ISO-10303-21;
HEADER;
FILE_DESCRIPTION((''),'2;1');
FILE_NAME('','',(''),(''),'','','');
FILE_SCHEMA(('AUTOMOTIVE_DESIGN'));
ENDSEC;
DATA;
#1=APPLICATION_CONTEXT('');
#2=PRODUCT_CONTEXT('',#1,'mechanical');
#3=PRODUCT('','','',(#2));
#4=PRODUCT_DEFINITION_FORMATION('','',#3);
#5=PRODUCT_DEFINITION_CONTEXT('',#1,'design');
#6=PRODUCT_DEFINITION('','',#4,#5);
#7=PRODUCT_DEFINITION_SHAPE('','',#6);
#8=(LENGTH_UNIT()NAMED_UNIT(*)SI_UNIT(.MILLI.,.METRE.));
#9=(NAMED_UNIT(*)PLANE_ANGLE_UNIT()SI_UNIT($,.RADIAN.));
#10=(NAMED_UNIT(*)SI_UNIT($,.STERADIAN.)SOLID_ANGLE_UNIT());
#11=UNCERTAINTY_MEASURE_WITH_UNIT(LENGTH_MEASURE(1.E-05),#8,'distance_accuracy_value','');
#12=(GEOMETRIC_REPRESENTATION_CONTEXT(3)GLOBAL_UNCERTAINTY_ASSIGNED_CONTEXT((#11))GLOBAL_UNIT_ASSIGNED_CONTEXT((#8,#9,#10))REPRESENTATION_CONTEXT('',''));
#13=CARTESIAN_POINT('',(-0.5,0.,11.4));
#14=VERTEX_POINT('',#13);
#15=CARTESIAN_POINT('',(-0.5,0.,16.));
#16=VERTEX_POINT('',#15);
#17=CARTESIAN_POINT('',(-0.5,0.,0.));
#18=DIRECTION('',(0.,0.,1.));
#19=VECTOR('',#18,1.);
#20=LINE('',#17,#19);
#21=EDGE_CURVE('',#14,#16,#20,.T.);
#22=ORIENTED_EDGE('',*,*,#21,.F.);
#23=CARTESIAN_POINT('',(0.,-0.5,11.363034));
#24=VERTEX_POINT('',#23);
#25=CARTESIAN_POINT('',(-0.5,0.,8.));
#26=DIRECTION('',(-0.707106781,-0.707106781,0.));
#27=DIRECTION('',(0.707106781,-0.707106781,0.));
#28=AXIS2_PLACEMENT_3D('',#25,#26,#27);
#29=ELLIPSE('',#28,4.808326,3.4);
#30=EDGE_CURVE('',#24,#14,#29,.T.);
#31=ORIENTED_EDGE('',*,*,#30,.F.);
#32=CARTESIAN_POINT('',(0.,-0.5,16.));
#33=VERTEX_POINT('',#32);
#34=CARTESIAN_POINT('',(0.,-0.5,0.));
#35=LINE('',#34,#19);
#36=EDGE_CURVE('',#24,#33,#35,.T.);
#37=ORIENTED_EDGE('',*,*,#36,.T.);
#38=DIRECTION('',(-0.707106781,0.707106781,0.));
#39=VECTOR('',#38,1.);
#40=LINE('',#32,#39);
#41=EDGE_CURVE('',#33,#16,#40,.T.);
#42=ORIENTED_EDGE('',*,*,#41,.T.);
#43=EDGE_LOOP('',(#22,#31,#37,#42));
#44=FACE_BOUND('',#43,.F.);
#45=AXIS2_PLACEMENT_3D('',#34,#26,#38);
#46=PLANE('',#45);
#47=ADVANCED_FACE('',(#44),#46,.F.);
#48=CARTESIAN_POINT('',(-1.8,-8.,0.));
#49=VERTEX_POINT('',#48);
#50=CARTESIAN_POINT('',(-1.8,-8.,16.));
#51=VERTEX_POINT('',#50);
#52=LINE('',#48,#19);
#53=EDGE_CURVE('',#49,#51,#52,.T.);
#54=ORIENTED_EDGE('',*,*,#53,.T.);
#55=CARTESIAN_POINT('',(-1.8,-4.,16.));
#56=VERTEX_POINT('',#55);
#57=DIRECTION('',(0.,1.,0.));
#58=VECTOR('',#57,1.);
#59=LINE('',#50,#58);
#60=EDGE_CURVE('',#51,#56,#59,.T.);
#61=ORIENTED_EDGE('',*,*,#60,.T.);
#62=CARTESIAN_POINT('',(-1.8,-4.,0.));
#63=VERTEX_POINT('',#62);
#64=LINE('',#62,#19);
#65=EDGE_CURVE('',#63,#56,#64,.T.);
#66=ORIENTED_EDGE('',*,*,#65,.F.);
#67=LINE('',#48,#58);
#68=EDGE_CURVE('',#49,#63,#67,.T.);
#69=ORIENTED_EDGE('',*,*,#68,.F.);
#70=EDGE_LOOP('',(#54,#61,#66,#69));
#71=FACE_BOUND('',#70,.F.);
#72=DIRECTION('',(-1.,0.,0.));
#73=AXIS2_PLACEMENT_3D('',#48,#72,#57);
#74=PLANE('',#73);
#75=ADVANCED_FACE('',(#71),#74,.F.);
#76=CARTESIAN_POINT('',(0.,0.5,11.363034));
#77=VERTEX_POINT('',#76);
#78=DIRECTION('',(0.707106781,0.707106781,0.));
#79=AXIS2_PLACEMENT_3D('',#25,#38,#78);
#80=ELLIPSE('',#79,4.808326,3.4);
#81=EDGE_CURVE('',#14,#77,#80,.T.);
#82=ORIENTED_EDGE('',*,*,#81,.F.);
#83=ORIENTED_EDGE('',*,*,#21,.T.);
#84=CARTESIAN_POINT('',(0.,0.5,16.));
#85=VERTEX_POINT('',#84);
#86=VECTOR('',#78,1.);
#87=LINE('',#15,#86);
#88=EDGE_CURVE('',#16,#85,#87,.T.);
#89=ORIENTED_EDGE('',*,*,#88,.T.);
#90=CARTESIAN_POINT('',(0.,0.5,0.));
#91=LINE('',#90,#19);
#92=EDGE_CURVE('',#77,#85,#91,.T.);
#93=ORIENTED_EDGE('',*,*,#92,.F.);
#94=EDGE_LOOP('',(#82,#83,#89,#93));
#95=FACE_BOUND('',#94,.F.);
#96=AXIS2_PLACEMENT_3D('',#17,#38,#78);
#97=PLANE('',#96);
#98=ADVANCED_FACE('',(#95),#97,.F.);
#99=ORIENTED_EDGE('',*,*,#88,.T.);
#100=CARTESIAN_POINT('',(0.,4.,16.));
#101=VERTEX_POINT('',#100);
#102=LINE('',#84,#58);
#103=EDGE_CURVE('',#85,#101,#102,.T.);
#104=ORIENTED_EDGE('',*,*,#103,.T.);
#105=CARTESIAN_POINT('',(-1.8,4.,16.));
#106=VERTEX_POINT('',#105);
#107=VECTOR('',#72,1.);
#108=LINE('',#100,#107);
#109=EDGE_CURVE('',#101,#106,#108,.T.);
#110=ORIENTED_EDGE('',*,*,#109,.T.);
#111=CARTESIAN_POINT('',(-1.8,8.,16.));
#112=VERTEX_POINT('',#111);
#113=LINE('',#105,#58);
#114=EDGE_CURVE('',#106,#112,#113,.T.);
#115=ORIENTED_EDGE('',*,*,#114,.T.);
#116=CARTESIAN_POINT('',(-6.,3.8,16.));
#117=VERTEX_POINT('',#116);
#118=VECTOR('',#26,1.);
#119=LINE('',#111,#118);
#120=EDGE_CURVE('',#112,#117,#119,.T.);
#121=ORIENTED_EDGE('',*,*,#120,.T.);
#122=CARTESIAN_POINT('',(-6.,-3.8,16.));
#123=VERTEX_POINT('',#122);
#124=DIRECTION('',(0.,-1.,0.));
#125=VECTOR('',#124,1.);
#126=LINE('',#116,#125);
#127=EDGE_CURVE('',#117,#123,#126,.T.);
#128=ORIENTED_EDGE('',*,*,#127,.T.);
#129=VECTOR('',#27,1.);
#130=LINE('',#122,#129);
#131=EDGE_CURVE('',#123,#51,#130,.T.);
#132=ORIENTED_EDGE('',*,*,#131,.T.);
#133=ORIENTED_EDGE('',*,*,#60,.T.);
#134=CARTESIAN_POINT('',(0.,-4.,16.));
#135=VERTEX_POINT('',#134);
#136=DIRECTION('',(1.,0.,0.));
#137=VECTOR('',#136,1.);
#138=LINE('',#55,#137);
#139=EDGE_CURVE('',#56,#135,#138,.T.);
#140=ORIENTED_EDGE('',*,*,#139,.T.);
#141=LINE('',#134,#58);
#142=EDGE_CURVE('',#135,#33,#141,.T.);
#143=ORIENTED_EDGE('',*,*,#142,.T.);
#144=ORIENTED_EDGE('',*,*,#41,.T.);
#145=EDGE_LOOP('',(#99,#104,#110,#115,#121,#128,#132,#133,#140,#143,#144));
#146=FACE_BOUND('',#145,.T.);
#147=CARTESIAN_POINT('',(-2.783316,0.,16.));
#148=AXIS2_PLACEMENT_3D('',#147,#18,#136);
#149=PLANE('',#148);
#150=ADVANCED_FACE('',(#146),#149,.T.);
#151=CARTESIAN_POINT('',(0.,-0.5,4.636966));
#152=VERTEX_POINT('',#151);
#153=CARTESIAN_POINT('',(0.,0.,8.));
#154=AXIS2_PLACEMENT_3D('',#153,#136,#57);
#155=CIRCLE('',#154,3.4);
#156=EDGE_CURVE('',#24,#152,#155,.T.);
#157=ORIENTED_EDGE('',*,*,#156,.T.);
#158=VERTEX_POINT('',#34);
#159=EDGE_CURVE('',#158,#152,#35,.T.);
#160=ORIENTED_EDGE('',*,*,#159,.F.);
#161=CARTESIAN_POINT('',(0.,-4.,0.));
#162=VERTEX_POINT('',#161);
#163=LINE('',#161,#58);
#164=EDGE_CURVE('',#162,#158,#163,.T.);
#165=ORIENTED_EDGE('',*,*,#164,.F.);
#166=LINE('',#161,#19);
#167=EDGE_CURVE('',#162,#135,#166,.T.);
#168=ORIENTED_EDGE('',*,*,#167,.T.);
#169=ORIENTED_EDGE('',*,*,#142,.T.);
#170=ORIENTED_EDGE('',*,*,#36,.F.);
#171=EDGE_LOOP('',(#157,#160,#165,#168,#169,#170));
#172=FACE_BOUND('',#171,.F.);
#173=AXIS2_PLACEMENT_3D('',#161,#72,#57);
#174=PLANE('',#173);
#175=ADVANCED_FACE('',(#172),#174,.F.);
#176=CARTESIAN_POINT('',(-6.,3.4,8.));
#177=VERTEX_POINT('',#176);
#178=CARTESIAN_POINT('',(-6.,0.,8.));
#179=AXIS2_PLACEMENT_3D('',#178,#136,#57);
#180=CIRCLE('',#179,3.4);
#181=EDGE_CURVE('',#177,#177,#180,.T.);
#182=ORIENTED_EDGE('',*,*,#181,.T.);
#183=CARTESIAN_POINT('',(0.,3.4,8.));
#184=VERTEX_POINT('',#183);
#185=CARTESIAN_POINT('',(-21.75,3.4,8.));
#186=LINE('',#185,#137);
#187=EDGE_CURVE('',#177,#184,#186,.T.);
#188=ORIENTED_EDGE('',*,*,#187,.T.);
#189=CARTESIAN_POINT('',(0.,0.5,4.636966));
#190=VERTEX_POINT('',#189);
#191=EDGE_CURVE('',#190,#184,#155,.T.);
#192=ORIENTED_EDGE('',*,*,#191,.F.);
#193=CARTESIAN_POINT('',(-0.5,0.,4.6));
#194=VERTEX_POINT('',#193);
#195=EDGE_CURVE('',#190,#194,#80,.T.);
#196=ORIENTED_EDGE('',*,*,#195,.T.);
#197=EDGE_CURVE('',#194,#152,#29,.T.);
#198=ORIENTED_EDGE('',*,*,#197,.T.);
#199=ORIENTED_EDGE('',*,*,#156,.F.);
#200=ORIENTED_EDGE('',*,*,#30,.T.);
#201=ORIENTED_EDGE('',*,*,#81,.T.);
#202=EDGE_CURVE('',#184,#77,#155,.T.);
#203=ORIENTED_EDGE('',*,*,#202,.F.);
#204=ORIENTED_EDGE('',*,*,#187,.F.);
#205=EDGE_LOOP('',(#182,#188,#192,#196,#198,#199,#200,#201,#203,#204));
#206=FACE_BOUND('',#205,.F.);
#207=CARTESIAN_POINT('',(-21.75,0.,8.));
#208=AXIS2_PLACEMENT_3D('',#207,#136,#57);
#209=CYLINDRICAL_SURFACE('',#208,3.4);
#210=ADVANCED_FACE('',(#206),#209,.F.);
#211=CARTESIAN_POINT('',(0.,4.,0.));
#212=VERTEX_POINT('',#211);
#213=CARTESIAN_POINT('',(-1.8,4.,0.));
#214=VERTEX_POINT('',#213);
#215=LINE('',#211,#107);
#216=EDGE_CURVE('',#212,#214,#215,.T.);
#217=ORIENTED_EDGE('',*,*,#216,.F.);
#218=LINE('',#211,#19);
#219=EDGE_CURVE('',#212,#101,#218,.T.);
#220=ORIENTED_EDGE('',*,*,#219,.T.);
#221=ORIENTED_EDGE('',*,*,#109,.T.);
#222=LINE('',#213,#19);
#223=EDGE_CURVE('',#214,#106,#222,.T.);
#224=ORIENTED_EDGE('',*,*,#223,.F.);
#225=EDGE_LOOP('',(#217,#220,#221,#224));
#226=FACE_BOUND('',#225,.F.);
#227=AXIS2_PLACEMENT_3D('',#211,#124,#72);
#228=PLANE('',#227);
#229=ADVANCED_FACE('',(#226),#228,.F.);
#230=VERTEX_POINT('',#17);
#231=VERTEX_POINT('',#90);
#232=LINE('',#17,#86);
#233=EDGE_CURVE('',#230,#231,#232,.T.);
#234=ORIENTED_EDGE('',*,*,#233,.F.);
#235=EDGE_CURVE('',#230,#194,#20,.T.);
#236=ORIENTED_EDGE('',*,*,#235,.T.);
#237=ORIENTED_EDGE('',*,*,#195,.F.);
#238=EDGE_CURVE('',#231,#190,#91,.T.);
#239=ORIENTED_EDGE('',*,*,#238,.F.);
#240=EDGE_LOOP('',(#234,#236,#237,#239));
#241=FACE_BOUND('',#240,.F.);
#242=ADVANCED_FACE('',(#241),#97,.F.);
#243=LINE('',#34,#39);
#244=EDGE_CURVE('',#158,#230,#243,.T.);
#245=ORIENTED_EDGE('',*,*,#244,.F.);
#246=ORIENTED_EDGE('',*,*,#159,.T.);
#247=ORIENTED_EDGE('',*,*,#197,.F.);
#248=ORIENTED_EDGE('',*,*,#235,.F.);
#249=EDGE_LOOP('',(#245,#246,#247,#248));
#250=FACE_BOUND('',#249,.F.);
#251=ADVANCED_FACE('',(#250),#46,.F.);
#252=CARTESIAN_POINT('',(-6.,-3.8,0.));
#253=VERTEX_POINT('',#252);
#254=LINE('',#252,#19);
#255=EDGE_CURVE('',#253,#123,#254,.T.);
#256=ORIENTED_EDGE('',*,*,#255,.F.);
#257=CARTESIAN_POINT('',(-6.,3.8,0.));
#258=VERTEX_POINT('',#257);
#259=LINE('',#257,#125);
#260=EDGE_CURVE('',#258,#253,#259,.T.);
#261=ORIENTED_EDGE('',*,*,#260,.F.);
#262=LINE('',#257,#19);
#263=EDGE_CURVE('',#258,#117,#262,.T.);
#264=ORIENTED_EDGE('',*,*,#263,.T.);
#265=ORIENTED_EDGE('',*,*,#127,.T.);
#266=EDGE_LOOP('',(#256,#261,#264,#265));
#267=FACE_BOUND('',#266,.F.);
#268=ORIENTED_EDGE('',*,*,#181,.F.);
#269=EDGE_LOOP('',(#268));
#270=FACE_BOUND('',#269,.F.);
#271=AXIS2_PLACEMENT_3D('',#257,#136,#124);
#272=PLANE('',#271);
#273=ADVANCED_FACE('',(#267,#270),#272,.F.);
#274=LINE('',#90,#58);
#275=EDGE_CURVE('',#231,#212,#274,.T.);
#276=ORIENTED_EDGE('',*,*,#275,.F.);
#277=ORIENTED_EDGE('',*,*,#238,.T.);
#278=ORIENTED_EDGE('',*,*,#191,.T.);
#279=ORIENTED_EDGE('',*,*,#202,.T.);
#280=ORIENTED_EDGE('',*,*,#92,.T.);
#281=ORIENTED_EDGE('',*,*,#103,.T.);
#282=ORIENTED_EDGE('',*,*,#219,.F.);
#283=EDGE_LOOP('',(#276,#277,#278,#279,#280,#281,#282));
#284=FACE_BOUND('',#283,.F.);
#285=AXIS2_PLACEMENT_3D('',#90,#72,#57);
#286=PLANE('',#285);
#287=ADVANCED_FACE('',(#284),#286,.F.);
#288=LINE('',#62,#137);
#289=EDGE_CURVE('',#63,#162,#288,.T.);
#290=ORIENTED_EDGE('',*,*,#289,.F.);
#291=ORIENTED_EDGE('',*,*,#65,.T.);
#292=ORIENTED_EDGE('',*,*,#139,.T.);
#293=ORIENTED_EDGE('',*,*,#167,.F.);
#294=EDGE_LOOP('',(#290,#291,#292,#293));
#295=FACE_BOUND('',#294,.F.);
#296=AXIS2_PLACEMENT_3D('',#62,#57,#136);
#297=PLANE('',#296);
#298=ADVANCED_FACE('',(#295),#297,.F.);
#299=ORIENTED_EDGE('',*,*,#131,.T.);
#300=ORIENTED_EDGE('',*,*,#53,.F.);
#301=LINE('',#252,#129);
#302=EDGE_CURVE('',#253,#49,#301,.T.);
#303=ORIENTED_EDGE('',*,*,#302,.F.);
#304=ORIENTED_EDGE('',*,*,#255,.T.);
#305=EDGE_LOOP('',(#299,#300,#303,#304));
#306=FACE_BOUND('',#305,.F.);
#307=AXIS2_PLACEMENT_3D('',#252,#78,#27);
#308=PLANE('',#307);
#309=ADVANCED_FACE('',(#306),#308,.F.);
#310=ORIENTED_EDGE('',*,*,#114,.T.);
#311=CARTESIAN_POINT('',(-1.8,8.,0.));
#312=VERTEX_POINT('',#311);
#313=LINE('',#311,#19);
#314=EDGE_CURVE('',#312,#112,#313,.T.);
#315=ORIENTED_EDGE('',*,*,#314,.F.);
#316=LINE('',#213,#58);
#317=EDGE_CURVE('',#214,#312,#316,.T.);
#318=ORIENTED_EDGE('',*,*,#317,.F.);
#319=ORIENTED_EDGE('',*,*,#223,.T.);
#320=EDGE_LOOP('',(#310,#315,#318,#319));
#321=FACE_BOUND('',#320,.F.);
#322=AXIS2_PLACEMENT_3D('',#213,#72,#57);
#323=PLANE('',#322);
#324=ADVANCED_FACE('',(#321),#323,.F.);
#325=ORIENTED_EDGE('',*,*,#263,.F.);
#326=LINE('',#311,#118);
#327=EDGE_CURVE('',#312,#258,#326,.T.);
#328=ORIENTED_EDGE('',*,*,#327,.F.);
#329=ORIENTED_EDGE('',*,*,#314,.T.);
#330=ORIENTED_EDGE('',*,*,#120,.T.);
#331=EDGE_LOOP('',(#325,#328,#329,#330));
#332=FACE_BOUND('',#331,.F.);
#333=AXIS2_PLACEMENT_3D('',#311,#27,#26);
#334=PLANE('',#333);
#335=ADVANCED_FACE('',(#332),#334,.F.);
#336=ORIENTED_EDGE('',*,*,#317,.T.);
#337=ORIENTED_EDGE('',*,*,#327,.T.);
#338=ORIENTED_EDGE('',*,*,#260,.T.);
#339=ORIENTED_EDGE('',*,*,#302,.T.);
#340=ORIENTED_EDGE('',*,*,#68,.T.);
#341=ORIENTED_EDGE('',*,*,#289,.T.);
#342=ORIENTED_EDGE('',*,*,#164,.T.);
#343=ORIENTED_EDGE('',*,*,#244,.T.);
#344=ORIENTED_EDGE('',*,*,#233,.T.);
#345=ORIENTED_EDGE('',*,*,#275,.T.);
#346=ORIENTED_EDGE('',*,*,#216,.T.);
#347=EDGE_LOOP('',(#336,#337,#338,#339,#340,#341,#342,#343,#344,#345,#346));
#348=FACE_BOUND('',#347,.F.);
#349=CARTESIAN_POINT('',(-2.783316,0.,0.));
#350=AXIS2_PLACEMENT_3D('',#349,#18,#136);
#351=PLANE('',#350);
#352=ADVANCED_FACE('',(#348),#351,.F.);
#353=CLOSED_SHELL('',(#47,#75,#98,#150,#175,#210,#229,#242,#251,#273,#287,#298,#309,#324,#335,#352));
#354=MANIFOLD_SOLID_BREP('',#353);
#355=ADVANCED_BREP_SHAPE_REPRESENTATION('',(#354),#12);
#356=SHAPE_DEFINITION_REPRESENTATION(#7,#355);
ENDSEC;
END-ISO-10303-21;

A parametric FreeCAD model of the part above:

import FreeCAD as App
import Part
import Sketcher

V = App.Vector
Q = App.Units.Quantity

doc = App.newDocument("Part")
body = doc.addObject("PartDesign::Body", "Body")

sketch1 = body.newObject("Sketcher::SketchObject", "Sketch")
sketch1.AttachmentSupport = (doc.getObject("XY_Plane"), [""])
sketch1.MapMode = "FlatFace"
sketch1.addGeometry(Part.LineSegment(V(-0.5, 0, 0), V(0, 0.5, 0)), False)
sketch1.addGeometry(Part.LineSegment(V(0, 0.5, 0), V(0, 4, 0)), False)
sketch1.addGeometry(Part.LineSegment(V(0, 4, 0), V(-1.8, 4, 0)), False)
sketch1.addGeometry(Part.LineSegment(V(-1.8, 4, 0), V(-1.8, 8, 0)), False)
sketch1.addGeometry(Part.LineSegment(V(-1.8, 8, 0), V(-6, 3.8, 0)), False)
sketch1.addGeometry(Part.LineSegment(V(-6, 3.8, 0), V(-6, -3.8, 0)), False)
sketch1.addGeometry(Part.LineSegment(V(-6, -3.8, 0), V(-1.8, -8, 0)), False)
sketch1.addGeometry(Part.LineSegment(V(-1.8, -8, 0), V(-1.8, -4, 0)), False)
sketch1.addGeometry(Part.LineSegment(V(-1.8, -4, 0), V(0, -4, 0)), False)
sketch1.addGeometry(Part.LineSegment(V(0, -4, 0), V(0, -0.5, 0)), False)
sketch1.addGeometry(Part.LineSegment(V(0, -0.5, 0), V(-0.5, 0, 0)), False)
sketch1.addConstraint(Sketcher.Constraint("Coincident", 0, 2, 1, 1))
sketch1.addConstraint(Sketcher.Constraint("Coincident", 1, 2, 2, 1))
sketch1.addConstraint(Sketcher.Constraint("Coincident", 2, 2, 3, 1))
sketch1.addConstraint(Sketcher.Constraint("Coincident", 3, 2, 4, 1))
sketch1.addConstraint(Sketcher.Constraint("Coincident", 4, 2, 5, 1))
sketch1.addConstraint(Sketcher.Constraint("Coincident", 5, 2, 6, 1))
sketch1.addConstraint(Sketcher.Constraint("Coincident", 6, 2, 7, 1))
sketch1.addConstraint(Sketcher.Constraint("Coincident", 7, 2, 8, 1))
sketch1.addConstraint(Sketcher.Constraint("Coincident", 8, 2, 9, 1))
sketch1.addConstraint(Sketcher.Constraint("Coincident", 9, 2, 10, 1))
sketch1.addConstraint(Sketcher.Constraint("Coincident", 10, 2, 0, 1))
sketch1.addConstraint(Sketcher.Constraint("Vertical", 1))
sketch1.addConstraint(Sketcher.Constraint("Horizontal", 2))
sketch1.addConstraint(Sketcher.Constraint("Vertical", 3))
sketch1.addConstraint(Sketcher.Constraint("Vertical", 5))
sketch1.addConstraint(Sketcher.Constraint("Vertical", 7))
sketch1.addConstraint(Sketcher.Constraint("Horizontal", 8))
sketch1.addConstraint(Sketcher.Constraint("Vertical", 9))
sketch1.addConstraint(Sketcher.Constraint("Symmetric", 1, 2, 8, 2, -1, 1))
sketch1.addConstraint(Sketcher.Constraint("Symmetric", 3, 2, 6, 2, -1))
sketch1.addConstraint(Sketcher.Constraint("Symmetric", 0, 2, 9, 2, -1))
sketch1.addConstraint(Sketcher.Constraint("PointOnObject", 10, 2, -1))
sketch1.addConstraint(Sketcher.Constraint("Parallel", 0, 4))
sketch1.addConstraint(Sketcher.Constraint("Perpendicular", 4, 6))
sketch1.addConstraint(Sketcher.Constraint("Parallel", 6, 10))
sketch1.addConstraint(Sketcher.Constraint("DistanceY", 3, 1, 3, 2, Q("4 mm")))
sketch1.addConstraint(Sketcher.Constraint("DistanceX", 2, 2, 2, 1, Q("1.8 mm")))
sketch1.addConstraint(Sketcher.Constraint("DistanceY", 1, 1, 1, 2, Q("3.5 mm")))
sketch1.addConstraint(Sketcher.Constraint("DistanceY", 5, 2, 5, 1, Q("7.6 mm")))
sketch1.addConstraint(Sketcher.Constraint("DistanceY", -1, 1, 1, 2, Q("4 mm")))
pad1 = body.newObject("PartDesign::Pad", "Pad")
pad1.Profile = sketch1
pad1.Length = 16

sketch2 = body.newObject("Sketcher::SketchObject", "Sketch001")
sketch2.AttachmentSupport = (doc.getObject("YZ_Plane"), [""])
sketch2.MapMode = "FlatFace"
sketch2.AttachmentOffset = App.Placement(V(0, 0, -6), App.Rotation())
sketch2.addGeometry(Part.Circle(V(0, 8, 0), V(0, 0, 1), 3.4), False)
sketch2.addConstraint(Sketcher.Constraint("PointOnObject", 0, 3, -2))
sketch2.addConstraint(Sketcher.Constraint("Diameter", 0, Q("6.8 mm")))
sketch2.addConstraint(Sketcher.Constraint("DistanceY", -1, 1, 0, 3, Q("8 mm")))
doc.recompute()
hole = body.newObject("PartDesign::Hole", "Hole")
hole.Profile = sketch2
hole.ThreadType = "None"
hole.Diameter = 6.8
hole.DepthType = "Dimension"
hole.Depth = 15.75
hole.DrillPoint = "Angled"
hole.DrillPointAngle = 118
hole.Reversed = True

doc.recompute()
